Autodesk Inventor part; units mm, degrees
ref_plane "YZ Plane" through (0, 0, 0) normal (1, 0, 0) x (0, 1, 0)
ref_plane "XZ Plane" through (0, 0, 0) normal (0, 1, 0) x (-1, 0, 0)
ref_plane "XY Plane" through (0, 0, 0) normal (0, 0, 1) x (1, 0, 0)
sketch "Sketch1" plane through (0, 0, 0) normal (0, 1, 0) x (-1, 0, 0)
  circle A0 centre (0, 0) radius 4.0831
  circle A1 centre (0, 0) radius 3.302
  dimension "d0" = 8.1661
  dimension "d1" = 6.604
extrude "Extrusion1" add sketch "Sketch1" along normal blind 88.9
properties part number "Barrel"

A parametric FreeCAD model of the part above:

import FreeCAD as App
import Part
import Sketcher
Q = App.Units.Quantity

doc = App.newDocument("Part")
body = doc.addObject("PartDesign::Body", "Body")

# Sketch on XZ plane
sketch1 = body.newObject("Sketcher::SketchObject", "Sketch")
sketch1.AttachmentSupport = (doc.getObject("XZ_Plane"), [""])
sketch1.MapMode = "FlatFace"
sketch1.addGeometry([
    Part.Circle(App.Vector(0, 0, 0), App.Vector(0, 0, 1), 4.1),
    Part.Circle(App.Vector(0, 0, 0), App.Vector(0, 0, 1), 3.3),
], False)
sketch1.addConstraint([
    Sketcher.Constraint("Coincident", 0, 3, -1, 1),
    Sketcher.Constraint("Coincident", 1, 3, -1, 1),
    Sketcher.Constraint("Diameter", 1, Q("0.26 in")),
    Sketcher.Constraint("Diameter", 0, Q("0.3215 in")),
])
pad1 = body.newObject("PartDesign::Pad", "Pad")
pad1.Profile = sketch1
pad1.Length = Q("3.5 in")
pad1.Reversed = True

doc.recompute()
